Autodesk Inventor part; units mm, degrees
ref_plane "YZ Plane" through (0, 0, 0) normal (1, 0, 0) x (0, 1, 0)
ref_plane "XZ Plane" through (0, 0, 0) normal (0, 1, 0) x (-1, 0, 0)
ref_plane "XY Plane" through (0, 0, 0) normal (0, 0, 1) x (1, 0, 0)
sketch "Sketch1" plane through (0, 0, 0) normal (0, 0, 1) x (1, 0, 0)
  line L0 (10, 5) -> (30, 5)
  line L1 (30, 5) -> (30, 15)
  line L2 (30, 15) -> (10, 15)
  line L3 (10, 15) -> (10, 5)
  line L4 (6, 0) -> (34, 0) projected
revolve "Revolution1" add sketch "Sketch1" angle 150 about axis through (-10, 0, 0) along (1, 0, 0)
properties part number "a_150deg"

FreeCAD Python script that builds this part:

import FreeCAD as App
import Part
import Sketcher


def add_polygon(sketch, points):
    """Adds a closed chain of lines whose ends are joined by coincident constraints."""
    first, n = sketch.GeometryCount, len(points)
    for a, b in zip(points, points[1:] + points[:1]):
        sketch.addGeometry(Part.LineSegment(App.Vector(*a, 0), App.Vector(*b, 0)), False)
    for i in range(n):
        sketch.addConstraint(Sketcher.Constraint("Coincident", first + i, 2, first + (i + 1) % n, 1))

doc = App.newDocument("Part")
body = doc.addObject("PartDesign::Body", "Body")

# Sketch on XY plane
sketch1 = body.newObject("Sketcher::SketchObject", "Sketch")
sketch1.AttachmentSupport = (doc.getObject("XY_Plane"), [""])
sketch1.MapMode = "FlatFace"
add_polygon(sketch1, [(10, 15), (10, 5), (30, 5), (30, 15)])  # lines 0-3
sketch1.addConstraint([
    Sketcher.Constraint("Vertical", 0),
    Sketcher.Constraint("Horizontal", 1),
    Sketcher.Constraint("Vertical", 2),
    Sketcher.Constraint("Horizontal", 3),
    Sketcher.Constraint("DistanceX", 1, 1, 1, 2, 20.0),
    Sketcher.Constraint("DistanceY", 0, 2, 0, 1, 10.0),
    Sketcher.Constraint("DistanceX", -1, 1, 0, 2, 10.0),
    Sketcher.Constraint("DistanceY", -1, 1, 0, 2, 5.0),
])
revolution = body.newObject("PartDesign::Revolution", "Revolution")
revolution.Profile = sketch1
revolution.ReferenceAxis = (sketch1, ["H_Axis"])
revolution.Angle = 150

doc.recompute()
